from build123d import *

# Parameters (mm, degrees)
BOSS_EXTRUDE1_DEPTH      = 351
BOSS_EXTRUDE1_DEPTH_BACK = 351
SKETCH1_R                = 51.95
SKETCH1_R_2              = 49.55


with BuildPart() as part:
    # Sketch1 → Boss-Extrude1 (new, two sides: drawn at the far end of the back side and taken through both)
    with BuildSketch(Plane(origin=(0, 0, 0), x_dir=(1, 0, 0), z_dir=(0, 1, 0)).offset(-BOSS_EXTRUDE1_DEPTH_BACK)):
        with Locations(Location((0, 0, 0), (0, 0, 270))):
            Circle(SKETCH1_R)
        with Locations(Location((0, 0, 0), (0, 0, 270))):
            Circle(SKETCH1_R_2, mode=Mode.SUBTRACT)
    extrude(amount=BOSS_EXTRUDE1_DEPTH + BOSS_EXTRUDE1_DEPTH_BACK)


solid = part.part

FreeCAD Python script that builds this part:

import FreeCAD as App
import Part
import Sketcher

V = App.Vector

doc = App.newDocument("Part")
body = doc.addObject("PartDesign::Body", "Body")

# Sketch on XZ plane
sketch1 = doc.addObject("Sketcher::SketchObject", "Sketch")
body.addObject(sketch1)
sketch1.AttachmentSupport = (doc.XZ_Plane, [""])
sketch1.MapMode = "FlatFace"
sketch1.addGeometry(Part.Circle(V(0, 0, 0), V(0, 0, 1), 51.95), False)
sketch1.addGeometry(Part.Circle(V(0, 0, 0), V(0, 0, 1), 49.55), False)
sketch1.addConstraint(Sketcher.Constraint("Coincident", 0, 3, -1, 1))
sketch1.addConstraint(Sketcher.Constraint("Coincident", 1, 3, -1, 1))
sketch1.addConstraint(Sketcher.Constraint("Diameter", 0, 103.9))
sketch1.addConstraint(Sketcher.Constraint("Diameter", 1, 99.1))
pad1 = doc.addObject("PartDesign::Pad", "Pad")
body.addObject(pad1)
pad1.Profile = sketch1
pad1.Type = "TwoLengths"
pad1.Length = 351
pad1.Length2 = 351
pad1.Reversed = True

doc.recompute()
